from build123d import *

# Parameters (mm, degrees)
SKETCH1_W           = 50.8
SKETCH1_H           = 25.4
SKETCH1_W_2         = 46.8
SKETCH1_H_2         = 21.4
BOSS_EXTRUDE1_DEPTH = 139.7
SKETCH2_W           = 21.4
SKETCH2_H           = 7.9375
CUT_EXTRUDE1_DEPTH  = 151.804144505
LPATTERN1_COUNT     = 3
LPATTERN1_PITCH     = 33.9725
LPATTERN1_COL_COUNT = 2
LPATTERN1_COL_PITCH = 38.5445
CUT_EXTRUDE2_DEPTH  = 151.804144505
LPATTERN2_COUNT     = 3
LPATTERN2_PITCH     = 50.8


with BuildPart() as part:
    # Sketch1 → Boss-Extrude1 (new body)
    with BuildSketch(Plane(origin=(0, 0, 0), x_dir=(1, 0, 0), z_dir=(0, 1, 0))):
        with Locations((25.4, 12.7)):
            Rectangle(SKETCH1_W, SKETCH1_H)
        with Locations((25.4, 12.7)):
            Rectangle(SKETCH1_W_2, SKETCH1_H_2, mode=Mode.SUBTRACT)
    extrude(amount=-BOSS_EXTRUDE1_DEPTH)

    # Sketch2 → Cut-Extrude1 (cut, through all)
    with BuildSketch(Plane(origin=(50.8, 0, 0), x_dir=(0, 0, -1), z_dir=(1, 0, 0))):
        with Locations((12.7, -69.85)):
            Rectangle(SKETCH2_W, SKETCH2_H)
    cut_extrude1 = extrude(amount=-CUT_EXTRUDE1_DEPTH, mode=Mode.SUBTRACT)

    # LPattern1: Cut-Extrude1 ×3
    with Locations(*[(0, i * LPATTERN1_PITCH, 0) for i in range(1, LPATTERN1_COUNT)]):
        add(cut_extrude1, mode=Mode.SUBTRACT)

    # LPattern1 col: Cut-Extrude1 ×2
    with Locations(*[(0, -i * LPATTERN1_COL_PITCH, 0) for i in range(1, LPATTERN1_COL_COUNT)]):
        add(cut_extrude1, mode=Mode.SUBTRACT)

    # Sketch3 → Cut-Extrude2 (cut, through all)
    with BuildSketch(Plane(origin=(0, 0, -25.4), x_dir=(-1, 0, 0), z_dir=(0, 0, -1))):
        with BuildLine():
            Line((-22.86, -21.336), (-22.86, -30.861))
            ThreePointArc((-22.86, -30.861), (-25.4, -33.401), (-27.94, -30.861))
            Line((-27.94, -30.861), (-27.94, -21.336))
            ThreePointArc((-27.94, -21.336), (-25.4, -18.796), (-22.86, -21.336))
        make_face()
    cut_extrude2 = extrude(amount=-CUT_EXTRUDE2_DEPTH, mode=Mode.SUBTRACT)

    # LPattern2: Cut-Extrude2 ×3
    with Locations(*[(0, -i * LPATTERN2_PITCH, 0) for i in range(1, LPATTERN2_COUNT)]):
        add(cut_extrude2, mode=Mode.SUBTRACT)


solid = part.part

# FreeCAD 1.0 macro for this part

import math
import FreeCAD as App
import Part
import Sketcher
from FreeCAD import Vector
Q = App.Units.Quantity

doc = App.newDocument("Part")
body = doc.addObject("PartDesign::Body", "Body")

sketch1 = body.newObject("Sketcher::SketchObject", "Sketch")
sketch1.AttachmentSupport = (doc.getObject("XZ_Plane"), [""])
sketch1.MapMode = "FlatFace"
sketch1.addGeometry([
    Part.LineSegment(Vector(0, -25.4, 0), Vector(0, 0, 0)),
    Part.LineSegment(Vector(0, 0, 0), Vector(50.8, 0, 0)),
    Part.LineSegment(Vector(50.8, 0, 0), Vector(50.8, -25.4, 0)),
    Part.LineSegment(Vector(50.8, -25.4, 0), Vector(0, -25.4, 0)),
    Part.LineSegment(Vector(48.8, -2, 0), Vector(2, -2, 0)),
    Part.LineSegment(Vector(2, -2, 0), Vector(2, -23.4, 0)),
    Part.LineSegment(Vector(2, -23.4, 0), Vector(48.8, -23.4, 0)),
    Part.LineSegment(Vector(48.8, -23.4, 0), Vector(48.8, -2, 0)),
], False)
sketch1.addConstraint([
    Sketcher.Constraint("Coincident", 0, 2, 1, 1),
    Sketcher.Constraint("Coincident", 1, 2, 2, 1),
    Sketcher.Constraint("Coincident", 2, 2, 3, 1),
    Sketcher.Constraint("Coincident", 3, 2, 0, 1),
    Sketcher.Constraint("Coincident", 4, 2, 5, 1),
    Sketcher.Constraint("Coincident", 5, 2, 6, 1),
    Sketcher.Constraint("Coincident", 6, 2, 7, 1),
    Sketcher.Constraint("Coincident", 7, 2, 4, 1),
    Sketcher.Constraint("Vertical", 0),
    Sketcher.Constraint("Horizontal", 1),
    Sketcher.Constraint("Vertical", 2),
    Sketcher.Constraint("Horizontal", 3),
    Sketcher.Constraint("Horizontal", 4),
    Sketcher.Constraint("Vertical", 5),
    Sketcher.Constraint("Horizontal", 6),
    Sketcher.Constraint("Vertical", 7),
    Sketcher.Constraint("Coincident", 0, 2, -1, 1),
    Sketcher.Constraint("DistanceX", 1, 1, 1, 2, Q("2 in")),
    Sketcher.Constraint("DistanceY", 0, 1, 0, 2, Q("1 in")),
    Sketcher.Constraint("DistanceX", 4, 2, 4, 1, Q("46.8 mm")),
    Sketcher.Constraint("DistanceY", 5, 2, 5, 1, Q("21.4 mm")),
    Sketcher.Constraint("DistanceX", -1, 1, 4, 2, Q("2 mm")),
    Sketcher.Constraint("DistanceY", 4, 2, -1, 1, Q("2 mm")),
])
pad1 = body.newObject("PartDesign::Pad", "Pad")
pad1.Profile = sketch1
pad1.Length = Q("5.5 in")

sketch2 = body.newObject("Sketcher::SketchObject", "Sketch001")
sketch2.AttachmentSupport = (doc.getObject("YZ_Plane"), [""])
sketch2.MapMode = "FlatFace"
sketch2.AttachmentOffset = App.Placement(Vector(0, 0, 2 * 25.4), App.Rotation())
sketch2.addGeometry([
    Part.LineSegment(Vector(-65.88125, -2, 0), Vector(-73.81875, -2, 0)),
    Part.LineSegment(Vector(-73.81875, -2, 0), Vector(-73.81875, -23.4, 0)),
    Part.LineSegment(Vector(-73.81875, -23.4, 0), Vector(-65.88125, -23.4, 0)),
    Part.LineSegment(Vector(-65.88125, -23.4, 0), Vector(-65.88125, -2, 0)),
], False)
sketch2.addConstraint([
    Sketcher.Constraint("Coincident", 0, 2, 1, 1),
    Sketcher.Constraint("Coincident", 1, 2, 2, 1),
    Sketcher.Constraint("Coincident", 2, 2, 3, 1),
    Sketcher.Constraint("Coincident", 3, 2, 0, 1),
    Sketcher.Constraint("Horizontal", 0),
    Sketcher.Constraint("Vertical", 1),
    Sketcher.Constraint("Horizontal", 2),
    Sketcher.Constraint("Vertical", 3),
    Sketcher.Constraint("DistanceX", 0, 2, 0, 1, Q("0.3125 in")),
    Sketcher.Constraint("DistanceX", 0, 2, -1, 1, Q("2.90625 in")),
    Sketcher.Constraint("DistanceY", 1, 2, 1, 1, Q("21.4 mm")),
    Sketcher.Constraint("DistanceY", 0, 2, -1, 1, Q("2 mm")),
])
pocket1 = body.newObject("PartDesign::Pocket", "Pocket")
pocket1.Profile = sketch2
pocket1.Type = "ThroughAll"
doc.recompute()

linearpattern = body.newObject("PartDesign::LinearPattern", "LinearPattern")
linearpattern.Originals = [pocket1]
linearpattern.Direction = (doc.getObject("Y_Axis"), [""])
linearpattern.Mode = "offset"
linearpattern.Offset = Q("1.3375 in")
linearpattern.Occurrences = 3
body.Tip = linearpattern
doc.recompute()

linearpattern2 = body.newObject("PartDesign::LinearPattern", "LinearPattern001")
linearpattern2.Originals = [pocket1]
linearpattern2.Direction = (doc.getObject("Y_Axis"), [""])
linearpattern2.Mode = "offset"
linearpattern2.Offset = Q("1.5175 in")
linearpattern2.Occurrences = 2
linearpattern2.Reversed = True
body.Tip = linearpattern2

sketch3 = body.newObject("Sketcher::SketchObject", "Sketch002")
sketch3.AttachmentSupport = (doc.getObject("XY_Plane"), [""])
sketch3.MapMode = "FlatFace"
sketch3.AttachmentOffset = App.Placement(Vector(0, 0, -1 * 25.4), App.Rotation())
sketch3.addGeometry([
    Part.LineSegment(Vector(22.86, -30.861, 0), Vector(22.86, -21.336, 0)),
    Part.ArcOfCircle(Part.Circle(Vector(25.4, -21.336, 0), Vector(0, 0, 1), 2.54), math.radians(0), math.radians(180)),
    Part.LineSegment(Vector(27.94, -21.336, 0), Vector(27.94, -30.861, 0)),
    Part.ArcOfCircle(Part.Circle(Vector(25.4, -30.861, 0), Vector(0, 0, 1), 2.54), math.radians(180), math.radians(360)),
], False)
sketch3.addConstraint([
    Sketcher.Constraint("Tangent", 0, 2, 1, 2),
    Sketcher.Constraint("Tangent", 1, 1, 2, 1),
    Sketcher.Constraint("Tangent", 2, 2, 3, 2),
    Sketcher.Constraint("Tangent", 3, 1, 0, 1),
    Sketcher.Constraint("Vertical", 0),
    Sketcher.Constraint("Vertical", 2),
    Sketcher.Constraint("Radius", 1, Q("0.1 in")),
    Sketcher.Constraint("DistanceX", -1, 1, 1, 3, Q("1 in")),
    Sketcher.Constraint("DistanceY", 0, 1, 0, 2, Q("0.375 in")),
    Sketcher.Constraint("DistanceY", 1, 3, -1, 1, Q("0.84 in")),
])
pocket2 = body.newObject("PartDesign::Pocket", "Pocket001")
pocket2.Profile = sketch3
pocket2.Type = "ThroughAll"
pocket2.Reversed = True
doc.recompute()

linearpattern3 = body.newObject("PartDesign::LinearPattern", "LinearPattern002")
linearpattern3.Originals = [pocket2]
linearpattern3.Direction = (doc.getObject("Y_Axis"), [""])
linearpattern3.Mode = "offset"
linearpattern3.Offset = Q("2 in")
linearpattern3.Occurrences = 3
linearpattern3.Reversed = True
body.Tip = linearpattern3

doc.recompute()
